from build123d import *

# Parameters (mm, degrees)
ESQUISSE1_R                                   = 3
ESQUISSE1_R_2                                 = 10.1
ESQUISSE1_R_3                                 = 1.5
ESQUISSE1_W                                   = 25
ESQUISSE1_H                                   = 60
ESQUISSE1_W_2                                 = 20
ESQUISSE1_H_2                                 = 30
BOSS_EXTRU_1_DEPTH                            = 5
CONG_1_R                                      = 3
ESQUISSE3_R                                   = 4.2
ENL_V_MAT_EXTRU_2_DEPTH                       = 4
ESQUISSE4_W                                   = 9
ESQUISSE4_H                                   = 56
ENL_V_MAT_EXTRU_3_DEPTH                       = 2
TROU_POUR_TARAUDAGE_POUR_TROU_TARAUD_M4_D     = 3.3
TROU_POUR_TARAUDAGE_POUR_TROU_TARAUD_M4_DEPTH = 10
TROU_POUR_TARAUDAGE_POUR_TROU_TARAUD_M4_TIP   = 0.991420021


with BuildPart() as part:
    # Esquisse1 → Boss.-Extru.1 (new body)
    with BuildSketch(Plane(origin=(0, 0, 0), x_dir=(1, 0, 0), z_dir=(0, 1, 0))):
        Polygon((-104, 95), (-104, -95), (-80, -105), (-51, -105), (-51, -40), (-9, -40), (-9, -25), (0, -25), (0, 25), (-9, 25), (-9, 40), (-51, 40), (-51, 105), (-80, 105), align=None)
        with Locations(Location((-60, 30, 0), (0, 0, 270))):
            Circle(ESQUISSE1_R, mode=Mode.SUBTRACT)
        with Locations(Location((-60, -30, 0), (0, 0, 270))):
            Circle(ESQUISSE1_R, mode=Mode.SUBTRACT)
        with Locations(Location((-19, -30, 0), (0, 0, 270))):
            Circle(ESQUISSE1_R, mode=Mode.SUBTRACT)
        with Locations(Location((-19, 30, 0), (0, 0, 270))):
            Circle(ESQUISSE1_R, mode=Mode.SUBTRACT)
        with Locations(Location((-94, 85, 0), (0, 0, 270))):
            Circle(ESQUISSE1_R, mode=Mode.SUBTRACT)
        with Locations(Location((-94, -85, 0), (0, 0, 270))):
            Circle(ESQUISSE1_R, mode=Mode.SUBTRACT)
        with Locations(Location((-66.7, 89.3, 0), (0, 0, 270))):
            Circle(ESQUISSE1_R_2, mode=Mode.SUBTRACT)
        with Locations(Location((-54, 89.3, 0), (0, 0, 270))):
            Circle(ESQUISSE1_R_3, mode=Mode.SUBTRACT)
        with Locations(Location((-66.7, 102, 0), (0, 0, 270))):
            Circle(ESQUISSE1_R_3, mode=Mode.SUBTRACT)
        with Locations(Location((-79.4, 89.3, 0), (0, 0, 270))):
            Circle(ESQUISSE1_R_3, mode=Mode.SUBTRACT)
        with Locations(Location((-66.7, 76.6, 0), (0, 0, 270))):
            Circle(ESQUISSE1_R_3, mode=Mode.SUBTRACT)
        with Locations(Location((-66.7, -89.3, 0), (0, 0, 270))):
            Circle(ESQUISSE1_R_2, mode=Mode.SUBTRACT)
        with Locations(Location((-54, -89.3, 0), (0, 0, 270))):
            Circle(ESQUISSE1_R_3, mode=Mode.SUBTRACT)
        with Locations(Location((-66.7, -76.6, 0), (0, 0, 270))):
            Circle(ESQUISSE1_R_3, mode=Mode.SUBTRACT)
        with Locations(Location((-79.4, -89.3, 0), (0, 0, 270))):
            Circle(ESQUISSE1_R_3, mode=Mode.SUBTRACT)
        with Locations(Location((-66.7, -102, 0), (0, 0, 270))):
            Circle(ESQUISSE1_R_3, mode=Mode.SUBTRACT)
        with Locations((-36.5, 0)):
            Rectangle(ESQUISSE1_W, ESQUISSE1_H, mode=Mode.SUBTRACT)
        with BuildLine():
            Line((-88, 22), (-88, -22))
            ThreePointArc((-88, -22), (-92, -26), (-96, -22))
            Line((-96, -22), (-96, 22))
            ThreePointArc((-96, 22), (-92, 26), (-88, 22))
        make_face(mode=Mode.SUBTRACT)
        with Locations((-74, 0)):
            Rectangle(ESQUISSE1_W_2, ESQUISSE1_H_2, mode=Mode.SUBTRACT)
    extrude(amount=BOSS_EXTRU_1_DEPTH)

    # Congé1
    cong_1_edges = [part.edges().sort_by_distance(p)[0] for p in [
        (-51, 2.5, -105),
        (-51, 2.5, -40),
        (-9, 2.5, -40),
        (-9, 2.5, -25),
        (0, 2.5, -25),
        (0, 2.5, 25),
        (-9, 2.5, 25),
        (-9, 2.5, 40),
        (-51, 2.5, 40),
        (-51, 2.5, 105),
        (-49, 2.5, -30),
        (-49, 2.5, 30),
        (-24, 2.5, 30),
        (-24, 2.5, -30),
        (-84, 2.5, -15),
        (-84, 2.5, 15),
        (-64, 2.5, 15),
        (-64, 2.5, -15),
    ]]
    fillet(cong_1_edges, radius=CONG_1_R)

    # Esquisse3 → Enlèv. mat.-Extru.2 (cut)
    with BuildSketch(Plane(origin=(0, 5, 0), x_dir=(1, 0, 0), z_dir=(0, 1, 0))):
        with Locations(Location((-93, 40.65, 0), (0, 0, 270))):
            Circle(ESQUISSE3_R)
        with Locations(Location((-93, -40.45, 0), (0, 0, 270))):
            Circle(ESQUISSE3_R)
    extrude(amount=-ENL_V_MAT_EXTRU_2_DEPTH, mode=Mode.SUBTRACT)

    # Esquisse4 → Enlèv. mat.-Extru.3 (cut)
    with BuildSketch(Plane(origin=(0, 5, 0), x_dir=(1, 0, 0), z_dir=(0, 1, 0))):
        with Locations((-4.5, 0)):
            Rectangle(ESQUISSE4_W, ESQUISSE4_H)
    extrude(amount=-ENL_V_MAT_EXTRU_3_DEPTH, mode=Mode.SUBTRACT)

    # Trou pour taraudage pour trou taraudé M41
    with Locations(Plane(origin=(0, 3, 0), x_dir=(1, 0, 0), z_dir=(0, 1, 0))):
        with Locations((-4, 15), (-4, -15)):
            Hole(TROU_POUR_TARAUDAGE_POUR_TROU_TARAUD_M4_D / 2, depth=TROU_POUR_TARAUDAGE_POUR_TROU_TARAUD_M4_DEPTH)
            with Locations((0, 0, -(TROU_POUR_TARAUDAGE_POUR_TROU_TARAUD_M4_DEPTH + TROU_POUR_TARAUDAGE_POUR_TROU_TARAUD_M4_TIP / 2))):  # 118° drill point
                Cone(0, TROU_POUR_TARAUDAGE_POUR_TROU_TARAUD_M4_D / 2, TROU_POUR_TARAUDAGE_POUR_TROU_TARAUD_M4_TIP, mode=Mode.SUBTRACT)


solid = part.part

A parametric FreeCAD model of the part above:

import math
import FreeCAD as App
import Part
import Sketcher
Q = App.Units.Quantity


def edges_at(feature, points):
    """Names of the edges that pass closest to the given points."""
    edges = feature.Shape.Edges
    near = lambda p: min(range(len(edges)), key=lambda i: edges[i].distToShape(Part.Vertex(*p))[0])
    return sorted({f"Edge{near(p) + 1}" for p in points})

doc = App.newDocument("Part")
body = doc.addObject("PartDesign::Body", "Body")

# Sketch on XZ plane
sketch1 = doc.addObject("Sketcher::SketchObject", "Sketch")
body.addObject(sketch1)
sketch1.AttachmentSupport = (doc.XZ_Plane, [""])
sketch1.MapMode = "FlatFace"
sketch1.addGeometry([
    Part.LineSegment(App.Vector(-104, -95, 0), App.Vector(-104, 95, 0)),  # 0
    Part.LineSegment(App.Vector(-104, 95, 0), App.Vector(-80, 105, 0)),  # 1
    Part.LineSegment(App.Vector(-80, 105, 0), App.Vector(-51, 105, 0)),  # 2
    Part.LineSegment(App.Vector(-51, 105, 0), App.Vector(-51, 40, 0)),  # 3
    Part.LineSegment(App.Vector(-51, 40, 0), App.Vector(-9, 40, 0)),  # 4
    Part.LineSegment(App.Vector(-9, 40, 0), App.Vector(-9, 25, 0)),  # 5
    Part.LineSegment(App.Vector(-9, 25, 0), App.Vector(0, 25, 0)),  # 6
    Part.LineSegment(App.Vector(0, 25, 0), App.Vector(0, -25, 0)),  # 7
    Part.LineSegment(App.Vector(0, -25, 0), App.Vector(-9, -25, 0)),  # 8
    Part.LineSegment(App.Vector(-9, -25, 0), App.Vector(-9, -40, 0)),  # 9
    Part.LineSegment(App.Vector(-9, -40, 0), App.Vector(-51, -40, 0)),  # 10
    Part.LineSegment(App.Vector(-51, -40, 0), App.Vector(-51, -105, 0)),  # 11
    Part.LineSegment(App.Vector(-51, -105, 0), App.Vector(-80, -105, 0)),  # 12
    Part.LineSegment(App.Vector(-80, -105, 0), App.Vector(-104, -95, 0)),  # 13
    Part.Circle(App.Vector(-94, 85, 0), App.Vector(0, 0, 1), 3),  # 14
    Part.Circle(App.Vector(-79.4, 89.3, 0), App.Vector(0, 0, 1), 1.5),  # 15
    Part.Circle(App.Vector(-66.7, 102, 0), App.Vector(0, 0, 1), 1.5),  # 16
    Part.Circle(App.Vector(-66.7, 89.3, 0), App.Vector(0, 0, 1), 10.1),  # 17
    Part.Circle(App.Vector(-66.7, 76.6, 0), App.Vector(0, 0, 1), 1.5),  # 18
    Part.Circle(App.Vector(-60, 30, 0), App.Vector(0, 0, 1), 3),  # 19
    Part.Circle(App.Vector(-54, 89.3, 0), App.Vector(0, 0, 1), 1.5),  # 20
    Part.Circle(App.Vector(-19, 30, 0), App.Vector(0, 0, 1), 3),  # 21
    Part.ArcOfCircle(Part.Circle(App.Vector(-92, -22, 0), App.Vector(0, 0, 1), 4), math.radians(180), math.radians(360)),  # 22
    Part.LineSegment(App.Vector(-88, -22, 0), App.Vector(-88, 22, 0)),  # 23
    Part.ArcOfCircle(Part.Circle(App.Vector(-92, 22, 0), App.Vector(0, 0, 1), 4), math.radians(0), math.radians(180)),  # 24
    Part.LineSegment(App.Vector(-96, 22, 0), App.Vector(-96, -22, 0)),  # 25
    Part.LineSegment(App.Vector(-64, 15, 0), App.Vector(-84, 15, 0)),  # 26
    Part.LineSegment(App.Vector(-84, 15, 0), App.Vector(-84, -15, 0)),  # 27
    Part.LineSegment(App.Vector(-84, -15, 0), App.Vector(-64, -15, 0)),  # 28
    Part.LineSegment(App.Vector(-64, -15, 0), App.Vector(-64, 15, 0)),  # 29
    Part.Circle(App.Vector(-60, -30, 0), App.Vector(0, 0, 1), 3),  # 30
    Part.Circle(App.Vector(-94, -85, 0), App.Vector(0, 0, 1), 3),  # 31
    Part.Circle(App.Vector(-79.4, -89.3, 0), App.Vector(0, 0, 1), 1.5),  # 32
    Part.Circle(App.Vector(-66.7, -76.6, 0), App.Vector(0, 0, 1), 1.5),  # 33
    Part.Circle(App.Vector(-66.7, -89.3, 0), App.Vector(0, 0, 1), 10.1),  # 34
    Part.Circle(App.Vector(-66.7, -102, 0), App.Vector(0, 0, 1), 1.5),  # 35
    Part.LineSegment(App.Vector(-24, 30, 0), App.Vector(-49, 30, 0)),  # 36
    Part.LineSegment(App.Vector(-49, 30, 0), App.Vector(-49, -30, 0)),  # 37
    Part.LineSegment(App.Vector(-49, -30, 0), App.Vector(-24, -30, 0)),  # 38
    Part.LineSegment(App.Vector(-24, -30, 0), App.Vector(-24, 30, 0)),  # 39
    Part.Circle(App.Vector(-19, -30, 0), App.Vector(0, 0, 1), 3),  # 40
    Part.Circle(App.Vector(-54, -89.3, 0), App.Vector(0, 0, 1), 1.5),  # 41
], False)
sketch1.addConstraint([
    Sketcher.Constraint("Coincident", 0, 2, 1, 1),
    Sketcher.Constraint("Coincident", 1, 2, 2, 1),
    Sketcher.Constraint("Coincident", 2, 2, 3, 1),
    Sketcher.Constraint("Coincident", 3, 2, 4, 1),
    Sketcher.Constraint("Coincident", 4, 2, 5, 1),
    Sketcher.Constraint("Coincident", 5, 2, 6, 1),
    Sketcher.Constraint("Coincident", 6, 2, 7, 1),
    Sketcher.Constraint("Coincident", 7, 2, 8, 1),
    Sketcher.Constraint("Coincident", 8, 2, 9, 1),
    Sketcher.Constraint("Coincident", 9, 2, 10, 1),
    Sketcher.Constraint("Coincident", 10, 2, 11, 1),
    Sketcher.Constraint("Coincident", 11, 2, 12, 1),
    Sketcher.Constraint("Coincident", 12, 2, 13, 1),
    Sketcher.Constraint("Coincident", 13, 2, 0, 1),
    Sketcher.Constraint("Tangent", 22, 2, 23, 1),
    Sketcher.Constraint("Tangent", 23, 2, 24, 1),
    Sketcher.Constraint("Tangent", 24, 2, 25, 1),
    Sketcher.Constraint("Tangent", 25, 2, 22, 1),
    Sketcher.Constraint("Coincident", 26, 2, 27, 1),
    Sketcher.Constraint("Coincident", 27, 2, 28, 1),
    Sketcher.Constraint("Coincident", 28, 2, 29, 1),
    Sketcher.Constraint("Coincident", 29, 2, 26, 1),
    Sketcher.Constraint("Coincident", 36, 2, 37, 1),
    Sketcher.Constraint("Coincident", 37, 2, 38, 1),
    Sketcher.Constraint("Coincident", 38, 2, 39, 1),
    Sketcher.Constraint("Coincident", 39, 2, 36, 1),
    Sketcher.Constraint("Vertical", 0),
    Sketcher.Constraint("Horizontal", 2),
    Sketcher.Constraint("Vertical", 3),
    Sketcher.Constraint("Horizontal", 4),
    Sketcher.Constraint("Vertical", 5),
    Sketcher.Constraint("Horizontal", 6),
    Sketcher.Constraint("Vertical", 7),
    Sketcher.Constraint("Horizontal", 8),
    Sketcher.Constraint("Vertical", 9),
    Sketcher.Constraint("Horizontal", 10),
    Sketcher.Constraint("Vertical", 11),
    Sketcher.Constraint("Horizontal", 12),
    Sketcher.Constraint("Vertical", 23),
    Sketcher.Constraint("Vertical", 25),
    Sketcher.Constraint("Horizontal", 26),
    Sketcher.Constraint("Vertical", 27),
    Sketcher.Constraint("Horizontal", 28),
    Sketcher.Constraint("Vertical", 29),
    Sketcher.Constraint("Horizontal", 36),
    Sketcher.Constraint("Vertical", 37),
    Sketcher.Constraint("Horizontal", 38),
    Sketcher.Constraint("Vertical", 39),
    Sketcher.Constraint("Equal", 15, 16),
    Sketcher.Constraint("Equal", 16, 18),
    Sketcher.Constraint("Equal", 14, 19),
    Sketcher.Constraint("Equal", 18, 20),
    Sketcher.Constraint("Equal", 19, 21),
    Sketcher.Constraint("Equal", 21, 30),
    Sketcher.Constraint("Equal", 30, 31),
    Sketcher.Constraint("Equal", 20, 32),
    Sketcher.Constraint("Equal", 32, 33),
    Sketcher.Constraint("Equal", 17, 34),
    Sketcher.Constraint("Equal", 33, 35),
    Sketcher.Constraint("Equal", 31, 40),
    Sketcher.Constraint("Equal", 35, 41),
    Sketcher.Constraint("Symmetric", 6, 2, 7, 2, -1, 1),
    Sketcher.Constraint("Symmetric", 19, 3, 30, 3, -1),
    Sketcher.Constraint("Symmetric", 14, 3, 31, 3, -1),
    Sketcher.Constraint("Symmetric", 15, 3, 32, 3, -1),
    Sketcher.Constraint("Symmetric", 18, 3, 33, 3, -1),
    Sketcher.Constraint("Symmetric", 17, 3, 34, 3, -1),
    Sketcher.Constraint("Symmetric", 16, 3, 35, 3, -1),
    Sketcher.Constraint("Symmetric", 21, 3, 40, 3, -1),
    Sketcher.Constraint("Symmetric", 20, 3, 41, 3, -1),
    Sketcher.Constraint("Symmetric", 4, 2, 9, 2, -1),
    Sketcher.Constraint("Symmetric", 2, 2, 11, 2, -1),
    Sketcher.Constraint("Horizontal", 15, 3, 17, 3),
    Sketcher.Constraint("Horizontal", 17, 3, 20, 3),
    Sketcher.Constraint("Horizontal", 19, 3, 21, 3),
    Sketcher.Constraint("Horizontal", 21, 3, 36, 2),
    Sketcher.Constraint("Horizontal", 40, 3, 37, 2),
    Sketcher.Constraint("Vertical", 16, 3, 17, 3),
    Sketcher.Constraint("Vertical", 17, 3, 18, 3),
    Sketcher.Constraint("Vertical", 1, 2, 12, 2),
    Sketcher.Constraint("Equal", 1, 13),
    Sketcher.Constraint("Diameter", 14, Q("6 mm")),
    Sketcher.Constraint("Diameter", 15, Q("3 mm")),
    Sketcher.Constraint("Radius", 22, Q("4 mm")),
    Sketcher.Constraint("Diameter", 17, Q("20.2 mm")),
    Sketcher.Constraint("DistanceX", 2, 1, 2, 2, Q("29 mm")),
    Sketcher.Constraint("DistanceX", 4, 1, 4, 2, Q("42 mm")),
    Sketcher.Constraint("DistanceX", 6, 1, 6, 2, Q("9 mm")),
    Sketcher.Constraint("DistanceX", 26, 2, 26, 1, Q("20 mm")),
    Sketcher.Constraint("DistanceX", 36, 2, 36, 1, Q("25 mm")),
    Sketcher.Constraint("DistanceY", 0, 1, 0, 2, Q("190 mm")),
    Sketcher.Constraint("DistanceY", 3, 2, 3, 1, Q("65 mm")),
    Sketcher.Constraint("DistanceY", 5, 2, 5, 1, Q("15 mm")),
    Sketcher.Constraint("DistanceY", 7, 2, 7, 1, Q("50 mm")),
    Sketcher.Constraint("DistanceY", 23, 1, 23, 2, Q("44 mm")),
    Sketcher.Constraint("DistanceY", 27, 2, 27, 1, Q("30 mm")),
    Sketcher.Constraint("DistanceY", 37, 2, 37, 1, Q("60 mm")),
    Sketcher.Constraint("Distance", 1, Q("26 mm")),
    Sketcher.Constraint("DistanceX", 14, 3, -1, 1, Q("94 mm")),
    Sketcher.Constraint("DistanceY", -1, 1, 14, 3, Q("85 mm")),
    Sketcher.Constraint("DistanceY", -1, 1, 16, 3, Q("102 mm")),
    Sketcher.Constraint("DistanceX", 19, 3, -1, 1, Q("60 mm")),
    Sketcher.Constraint("DistanceX", 20, 3, -1, 1, Q("54 mm")),
    Sketcher.Constraint("DistanceX", 21, 3, -1, 1, Q("19 mm")),
    Sketcher.Constraint("DistanceX", 22, 3, -1, 1, Q("92 mm")),
    Sketcher.Constraint("DistanceY", 22, 3, -1, 1, Q("22 mm")),
    Sketcher.Constraint("DistanceX", 26, 2, -1, 1, Q("84 mm")),
    Sketcher.Constraint("DistanceY", -1, 1, 26, 2, Q("15 mm")),
    Sketcher.Constraint("DistanceX", 36, 2, -1, 1, Q("49 mm")),
    Sketcher.Constraint("DistanceX", 15, 3, -1, 1, Q("79.4 mm")),
    Sketcher.Constraint("DistanceY", -1, 1, 15, 3, Q("89.3 mm")),
    Sketcher.Constraint("DistanceX", 16, 3, -1, 1, Q("66.7 mm")),
    Sketcher.Constraint("DistanceY", -1, 1, 18, 3, Q("76.6 mm")),
])
pad1 = doc.addObject("PartDesign::Pad", "Pad")
body.addObject(pad1)
pad1.Profile = sketch1
pad1.Length = 5
pad1.Reversed = True
doc.recompute()

fillet = doc.addObject("PartDesign::Fillet", "Fillet")
body.addObject(fillet)
fillet.Base = (pad1, edges_at(pad1, [
    (-51, 2.5, -105),
    (-51, 2.5, -40),
    (-9, 2.5, -40),
    (-9, 2.5, -25),
    (0, 2.5, -25),
    (0, 2.5, 25),
    (-9, 2.5, 25),
    (-9, 2.5, 40),
    (-51, 2.5, 40),
    (-51, 2.5, 105),
    (-49, 2.5, -30),
    (-49, 2.5, 30),
    (-24, 2.5, 30),
    (-24, 2.5, -30),
    (-84, 2.5, -15),
    (-84, 2.5, 15),
    (-64, 2.5, 15),
    (-64, 2.5, -15),
]))
fillet.Radius = 3

# Sketch on XZ plane
sketch2 = doc.addObject("Sketcher::SketchObject", "Sketch001")
body.addObject(sketch2)
sketch2.AttachmentSupport = (doc.XZ_Plane, [""])
sketch2.MapMode = "FlatFace"
sketch2.AttachmentOffset = App.Placement(App.Vector(0, 0, -5), App.Rotation())
sketch2.addGeometry([
    Part.Circle(App.Vector(-93, -40.6, 0), App.Vector(0, 0, 1), 4.2),
    Part.Circle(App.Vector(-93, 40.5, 0), App.Vector(0, 0, 1), 4.2),
], False)
sketch2.addConstraint([
    Sketcher.Constraint("Equal", 0, 1),
    Sketcher.Constraint("Vertical", 0, 3, 1, 3),
    Sketcher.Constraint("Diameter", 0, Q("8.4 mm")),
    Sketcher.Constraint("DistanceX", 0, 3, -1, 1, Q("93 mm")),
    Sketcher.Constraint("DistanceY", 0, 3, 1, 3, Q("81.1 mm")),
    Sketcher.Constraint("DistanceY", 0, 3, -1, 1, Q("40.65 mm")),
])
pocket1 = doc.addObject("PartDesign::Pocket", "Pocket")
body.addObject(pocket1)
pocket1.Profile = sketch2
pocket1.Length = 4
pocket1.Reversed = True

# Sketch on XZ plane
sketch3 = doc.addObject("Sketcher::SketchObject", "Sketch002")
body.addObject(sketch3)
sketch3.AttachmentSupport = (doc.XZ_Plane, [""])
sketch3.MapMode = "FlatFace"
sketch3.AttachmentOffset = App.Placement(App.Vector(0, 0, -5), App.Rotation())
sketch3.addGeometry([
    Part.LineSegment(App.Vector(-9, -28, 0), App.Vector(-9, 28, 0)),
    Part.LineSegment(App.Vector(-9, 28, 0), App.Vector(0, 28, 0)),
    Part.LineSegment(App.Vector(0, 28, 0), App.Vector(0, -28, 0)),
    Part.LineSegment(App.Vector(0, -28, 0), App.Vector(-9, -28, 0)),
], False)
sketch3.addConstraint([
    Sketcher.Constraint("Coincident", 0, 2, 1, 1),
    Sketcher.Constraint("Coincident", 1, 2, 2, 1),
    Sketcher.Constraint("Coincident", 2, 2, 3, 1),
    Sketcher.Constraint("Coincident", 3, 2, 0, 1),
    Sketcher.Constraint("Vertical", 0),
    Sketcher.Constraint("Horizontal", 1),
    Sketcher.Constraint("Vertical", 2),
    Sketcher.Constraint("Horizontal", 3),
    Sketcher.Constraint("Symmetric", 1, 2, 2, 2, -1, 1),
    Sketcher.Constraint("DistanceX", 1, 1, 1, 2, Q("9 mm")),
    Sketcher.Constraint("DistanceY", 0, 1, 0, 2, Q("56 mm")),
])
pocket2 = doc.addObject("PartDesign::Pocket", "Pocket001")
body.addObject(pocket2)
pocket2.Profile = sketch3
pocket2.Length = 2
pocket2.Reversed = True

# Sketch on XZ plane
sketch4 = doc.addObject("Sketcher::SketchObject", "Sketch003")
body.addObject(sketch4)
sketch4.AttachmentSupport = (doc.XZ_Plane, [""])
sketch4.MapMode = "FlatFace"
sketch4.AttachmentOffset = App.Placement(App.Vector(0, 0, -3), App.Rotation())
sketch4.addGeometry([
    Part.Circle(App.Vector(-4, -15, 0), App.Vector(0, 0, 1), 1.6),
    Part.Circle(App.Vector(-4, 15, 0), App.Vector(0, 0, 1), 1.6),
], False)
sketch4.addConstraint([
    Sketcher.Constraint("Equal", 0, 1),
    Sketcher.Constraint("Symmetric", 0, 3, 1, 3, -1),
    Sketcher.Constraint("Diameter", 0, Q("3.3 mm")),
    Sketcher.Constraint("DistanceX", 0, 3, -1, 1, Q("4 mm")),
    Sketcher.Constraint("DistanceY", 0, 3, -1, 1, Q("15 mm")),
])
doc.recompute()
hole = doc.addObject("PartDesign::Hole", "Hole")
body.addObject(hole)
hole.Profile = sketch4
hole.ThreadType = "None"
hole.Diameter = 3.3
hole.DepthType = "Dimension"
hole.Depth = 10
hole.DrillPoint = "Angled"
hole.DrillPointAngle = 118
hole.Reversed = True

doc.recompute()
